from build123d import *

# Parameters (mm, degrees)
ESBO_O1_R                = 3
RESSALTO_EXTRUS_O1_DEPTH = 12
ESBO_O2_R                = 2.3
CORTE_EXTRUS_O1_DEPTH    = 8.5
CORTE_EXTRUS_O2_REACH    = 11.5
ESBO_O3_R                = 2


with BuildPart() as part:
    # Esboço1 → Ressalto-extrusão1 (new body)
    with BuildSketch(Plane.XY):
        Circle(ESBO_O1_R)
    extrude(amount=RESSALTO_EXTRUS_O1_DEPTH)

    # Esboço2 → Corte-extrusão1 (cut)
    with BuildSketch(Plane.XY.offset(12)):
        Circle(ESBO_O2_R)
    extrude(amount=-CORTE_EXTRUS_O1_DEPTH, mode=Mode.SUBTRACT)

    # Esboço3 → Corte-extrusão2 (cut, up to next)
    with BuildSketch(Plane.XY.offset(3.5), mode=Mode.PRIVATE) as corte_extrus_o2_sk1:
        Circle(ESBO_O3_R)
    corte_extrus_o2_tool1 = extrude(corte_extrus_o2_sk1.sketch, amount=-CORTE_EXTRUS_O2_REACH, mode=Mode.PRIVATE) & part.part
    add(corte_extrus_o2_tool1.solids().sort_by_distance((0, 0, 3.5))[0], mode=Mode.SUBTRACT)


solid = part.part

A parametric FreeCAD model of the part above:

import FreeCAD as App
import Part
import Sketcher
Q = App.Units.Quantity

doc = App.newDocument("Part")
body = doc.addObject("PartDesign::Body", "Body")

# Sketch on XY plane
sketch1 = body.newObject("Sketcher::SketchObject", "Sketch")
sketch1.AttachmentSupport = (doc.getObject("XY_Plane"), [""])
sketch1.MapMode = "FlatFace"
sketch1.addGeometry(Part.Circle(App.Vector(0, 0, 0), App.Vector(0, 0, 1), 3), False)
sketch1.addConstraint(Sketcher.Constraint("Coincident", 0, 3, -1, 1))
sketch1.addConstraint(Sketcher.Constraint("Diameter", 0, Q("6 mm")))
pad1 = body.newObject("PartDesign::Pad", "Pad")
pad1.Profile = sketch1
pad1.Length = 12

# Sketch on XY plane
sketch2 = body.newObject("Sketcher::SketchObject", "Sketch001")
sketch2.AttachmentSupport = (doc.getObject("XY_Plane"), [""])
sketch2.MapMode = "FlatFace"
sketch2.AttachmentOffset = App.Placement(App.Vector(0, 0, 12), App.Rotation())
sketch2.addGeometry(Part.Circle(App.Vector(0, 0, 0), App.Vector(0, 0, 1), 2.3), False)
sketch2.addConstraint(Sketcher.Constraint("Coincident", 0, 3, -1, 1))
sketch2.addConstraint(Sketcher.Constraint("Diameter", 0, Q("4.6 mm")))
pocket1 = body.newObject("PartDesign::Pocket", "Pocket")
pocket1.Profile = sketch2
pocket1.Length = 8.5

# Sketch on XY plane
sketch3 = body.newObject("Sketcher::SketchObject", "Sketch002")
sketch3.AttachmentSupport = (doc.getObject("XY_Plane"), [""])
sketch3.MapMode = "FlatFace"
sketch3.AttachmentOffset = App.Placement(App.Vector(0, 0, 3.5), App.Rotation())
sketch3.addGeometry(Part.Circle(App.Vector(0, 0, 0), App.Vector(0, 0, 1), 2), False)
sketch3.addConstraint(Sketcher.Constraint("Coincident", 0, 3, -1, 1))
sketch3.addConstraint(Sketcher.Constraint("Diameter", 0, Q("4 mm")))
pocket2 = body.newObject("PartDesign::Pocket", "Pocket001")
pocket2.Profile = sketch3
pocket2.Type = "UpToFirst"

doc.recompute()
